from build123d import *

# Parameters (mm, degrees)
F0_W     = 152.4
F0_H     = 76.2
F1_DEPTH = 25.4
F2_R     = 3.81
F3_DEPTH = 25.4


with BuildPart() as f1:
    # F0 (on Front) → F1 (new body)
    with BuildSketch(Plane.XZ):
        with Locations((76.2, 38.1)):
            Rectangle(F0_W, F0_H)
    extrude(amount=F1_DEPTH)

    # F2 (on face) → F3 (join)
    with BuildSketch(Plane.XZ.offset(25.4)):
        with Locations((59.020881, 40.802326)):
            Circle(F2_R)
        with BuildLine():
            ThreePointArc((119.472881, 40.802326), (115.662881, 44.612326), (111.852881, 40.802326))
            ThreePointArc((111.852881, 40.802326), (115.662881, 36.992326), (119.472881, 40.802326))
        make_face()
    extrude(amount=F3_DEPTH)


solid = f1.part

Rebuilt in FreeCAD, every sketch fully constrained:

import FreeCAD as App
import Part
import Sketcher
Q = App.Units.Quantity

doc = App.newDocument("Part")
params = doc.addObject("Spreadsheet::Sheet", "Params")
for row, (alias, value) in enumerate([
    ("sketch1_width", "6 in"),
    ("sketch1_height", "3 in"),
    ("pad1_length", "1 in"),
    ("sketch2_diameter", "0.3 in"),
    ("pad2_length", "1 in"),
], start=1):
    params.set(f"A{row}", alias)
    params.set(f"B{row}", "=" + value)
    params.setAlias(f"B{row}", alias)

body = doc.addObject("PartDesign::Body", "Body")

# Sketch on XZ plane
sketch1 = body.newObject("Sketcher::SketchObject", "Sketch")
sketch1.AttachmentSupport = (doc.getObject("XZ_Plane"), [""])
sketch1.MapMode = "FlatFace"
sketch1.addGeometry([
    Part.LineSegment(App.Vector(0, 76, 0), App.Vector(0, 0, 0)),
    Part.LineSegment(App.Vector(0, 0, 0), App.Vector(152, 0, 0)),
    Part.LineSegment(App.Vector(152, 0, 0), App.Vector(152, 76, 0)),
    Part.LineSegment(App.Vector(152, 76, 0), App.Vector(0, 76, 0)),
], False)
sketch1.addConstraint([
    Sketcher.Constraint("Coincident", 0, 2, 1, 1),
    Sketcher.Constraint("Coincident", 1, 2, 2, 1),
    Sketcher.Constraint("Coincident", 2, 2, 3, 1),
    Sketcher.Constraint("Coincident", 3, 2, 0, 1),
    Sketcher.Constraint("Vertical", 0),
    Sketcher.Constraint("Horizontal", 1),
    Sketcher.Constraint("Vertical", 2),
    Sketcher.Constraint("Horizontal", 3),
    Sketcher.Constraint("Coincident", 0, 2, -1, 1),
    Sketcher.Constraint("DistanceX", 1, 1, 1, 2, Q("6 in")),
    Sketcher.Constraint("DistanceY", 0, 2, 0, 1, Q("3 in")),
])
sketch1.setExpression("Constraints[9]", "Params.sketch1_width")
sketch1.setExpression("Constraints[10]", "Params.sketch1_height")
pad1 = body.newObject("PartDesign::Pad", "Pad")
pad1.Profile = sketch1
pad1.setExpression("Length", "Params.pad1_length")

# Sketch on XZ plane
sketch2 = body.newObject("Sketcher::SketchObject", "Sketch001")
sketch2.AttachmentSupport = (doc.getObject("XZ_Plane"), [""])
sketch2.MapMode = "FlatFace"
sketch2.AttachmentOffset = App.Placement(App.Vector(0, 0, 1 * 25.4), App.Rotation())
sketch2.addGeometry([
    Part.Circle(App.Vector(59, 40.8, 0), App.Vector(0, 0, 1), 3.8),
    Part.Circle(App.Vector(115.7, 40.8, 0), App.Vector(0, 0, 1), 3.8),
], False)
sketch2.addConstraint([
    Sketcher.Constraint("Equal", 0, 1),
    Sketcher.Constraint("Horizontal", 0, 3, 1, 3),
    Sketcher.Constraint("Diameter", 0, Q("0.3 in")),
    Sketcher.Constraint("DistanceX", 0, 3, 1, 3, Q("2.23 in")),
    Sketcher.Constraint("DistanceX", -1, 1, 0, 3, 59.020881),
    Sketcher.Constraint("DistanceY", -1, 1, 0, 3, 40.802326),
])
sketch2.setExpression("Constraints[2]", "Params.sketch2_diameter")
pad2 = body.newObject("PartDesign::Pad", "Pad001")
pad2.Profile = sketch2
pad2.setExpression("Length", "Params.pad2_length")

doc.recompute()
